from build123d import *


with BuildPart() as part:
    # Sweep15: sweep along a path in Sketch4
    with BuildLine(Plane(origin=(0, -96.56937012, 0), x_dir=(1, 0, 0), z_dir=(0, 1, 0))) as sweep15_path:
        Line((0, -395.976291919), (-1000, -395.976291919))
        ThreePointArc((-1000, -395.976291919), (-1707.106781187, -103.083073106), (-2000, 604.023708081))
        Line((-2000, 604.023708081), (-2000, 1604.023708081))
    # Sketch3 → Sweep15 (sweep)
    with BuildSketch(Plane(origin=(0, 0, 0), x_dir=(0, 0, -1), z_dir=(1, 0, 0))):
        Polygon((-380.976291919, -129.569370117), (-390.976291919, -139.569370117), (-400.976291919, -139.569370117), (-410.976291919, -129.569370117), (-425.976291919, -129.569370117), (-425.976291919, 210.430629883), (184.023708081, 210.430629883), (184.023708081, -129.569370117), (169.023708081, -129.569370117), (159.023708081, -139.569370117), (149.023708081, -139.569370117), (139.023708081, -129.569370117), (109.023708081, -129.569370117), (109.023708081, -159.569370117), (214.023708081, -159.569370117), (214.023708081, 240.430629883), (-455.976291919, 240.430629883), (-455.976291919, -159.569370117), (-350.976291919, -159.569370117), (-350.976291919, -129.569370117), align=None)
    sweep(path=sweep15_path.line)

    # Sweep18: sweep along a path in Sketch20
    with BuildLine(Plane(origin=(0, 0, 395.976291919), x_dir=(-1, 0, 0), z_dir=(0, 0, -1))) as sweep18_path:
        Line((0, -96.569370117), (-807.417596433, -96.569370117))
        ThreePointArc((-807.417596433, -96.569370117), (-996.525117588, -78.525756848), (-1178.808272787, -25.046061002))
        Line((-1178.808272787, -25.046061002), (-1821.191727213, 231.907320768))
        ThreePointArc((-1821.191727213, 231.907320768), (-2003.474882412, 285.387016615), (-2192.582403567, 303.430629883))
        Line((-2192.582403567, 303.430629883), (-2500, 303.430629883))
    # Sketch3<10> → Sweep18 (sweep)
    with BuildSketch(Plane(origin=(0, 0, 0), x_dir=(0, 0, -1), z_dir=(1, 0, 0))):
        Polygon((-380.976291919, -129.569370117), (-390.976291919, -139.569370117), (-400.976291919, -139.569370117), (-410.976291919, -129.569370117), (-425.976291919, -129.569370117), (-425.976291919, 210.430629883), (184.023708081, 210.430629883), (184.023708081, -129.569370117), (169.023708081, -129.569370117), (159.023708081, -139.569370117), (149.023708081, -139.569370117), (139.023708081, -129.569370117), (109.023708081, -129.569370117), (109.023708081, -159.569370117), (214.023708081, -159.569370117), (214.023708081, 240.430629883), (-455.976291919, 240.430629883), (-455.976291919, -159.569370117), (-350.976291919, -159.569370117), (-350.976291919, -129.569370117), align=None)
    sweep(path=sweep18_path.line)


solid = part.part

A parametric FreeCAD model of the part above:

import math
import FreeCAD as App
import Part
import Sketcher

doc = App.newDocument("Part")
body = doc.addObject("PartDesign::Body", "Body")

sketch1 = body.newObject("Sketcher::SketchObject", "Sketch")
sketch1.AttachmentSupport = (doc.getObject("YZ_Plane"), [""])
sketch1.MapMode = "FlatFace"
sketch1.addGeometry(Part.LineSegment(App.Vector(-130, 381, 0), App.Vector(-140, 391, 0)), False)
sketch1.addGeometry(Part.LineSegment(App.Vector(-140, 391, 0), App.Vector(-140, 401, 0)), False)
sketch1.addGeometry(Part.LineSegment(App.Vector(-140, 401, 0), App.Vector(-130, 411, 0)), False)
sketch1.addGeometry(Part.LineSegment(App.Vector(-130, 411, 0), App.Vector(-130, 426, 0)), False)
sketch1.addGeometry(Part.LineSegment(App.Vector(-130, 426, 0), App.Vector(210, 426, 0)), False)
sketch1.addGeometry(Part.LineSegment(App.Vector(210, 426, 0), App.Vector(210, -184, 0)), False)
sketch1.addGeometry(Part.LineSegment(App.Vector(210, -184, 0), App.Vector(-130, -184, 0)), False)
sketch1.addGeometry(Part.LineSegment(App.Vector(-130, -184, 0), App.Vector(-130, -169, 0)), False)
sketch1.addGeometry(Part.LineSegment(App.Vector(-130, -169, 0), App.Vector(-140, -159, 0)), False)
sketch1.addGeometry(Part.LineSegment(App.Vector(-140, -159, 0), App.Vector(-140, -149, 0)), False)
sketch1.addGeometry(Part.LineSegment(App.Vector(-140, -149, 0), App.Vector(-130, -139, 0)), False)
sketch1.addGeometry(Part.LineSegment(App.Vector(-130, -139, 0), App.Vector(-130, -109, 0)), False)
sketch1.addGeometry(Part.LineSegment(App.Vector(-130, -109, 0), App.Vector(-160, -109, 0)), False)
sketch1.addGeometry(Part.LineSegment(App.Vector(-160, -109, 0), App.Vector(-160, -214, 0)), False)
sketch1.addGeometry(Part.LineSegment(App.Vector(-160, -214, 0), App.Vector(240, -214, 0)), False)
sketch1.addGeometry(Part.LineSegment(App.Vector(240, -214, 0), App.Vector(240, 456, 0)), False)
sketch1.addGeometry(Part.LineSegment(App.Vector(240, 456, 0), App.Vector(-160, 456, 0)), False)
sketch1.addGeometry(Part.LineSegment(App.Vector(-160, 456, 0), App.Vector(-160, 351, 0)), False)
sketch1.addGeometry(Part.LineSegment(App.Vector(-160, 351, 0), App.Vector(-130, 351, 0)), False)
sketch1.addGeometry(Part.LineSegment(App.Vector(-130, 351, 0), App.Vector(-130, 381, 0)), False)
sketch1.addConstraint(Sketcher.Constraint("Coincident", 0, 2, 1, 1))
sketch1.addConstraint(Sketcher.Constraint("Coincident", 1, 2, 2, 1))
sketch1.addConstraint(Sketcher.Constraint("Coincident", 2, 2, 3, 1))
sketch1.addConstraint(Sketcher.Constraint("Coincident", 3, 2, 4, 1))
sketch1.addConstraint(Sketcher.Constraint("Coincident", 4, 2, 5, 1))
sketch1.addConstraint(Sketcher.Constraint("Coincident", 5, 2, 6, 1))
sketch1.addConstraint(Sketcher.Constraint("Coincident", 6, 2, 7, 1))
sketch1.addConstraint(Sketcher.Constraint("Coincident", 7, 2, 8, 1))
sketch1.addConstraint(Sketcher.Constraint("Coincident", 8, 2, 9, 1))
sketch1.addConstraint(Sketcher.Constraint("Coincident", 9, 2, 10, 1))
sketch1.addConstraint(Sketcher.Constraint("Coincident", 10, 2, 11, 1))
sketch1.addConstraint(Sketcher.Constraint("Coincident", 11, 2, 12, 1))
sketch1.addConstraint(Sketcher.Constraint("Coincident", 12, 2, 13, 1))
sketch1.addConstraint(Sketcher.Constraint("Coincident", 13, 2, 14, 1))
sketch1.addConstraint(Sketcher.Constraint("Coincident", 14, 2, 15, 1))
sketch1.addConstraint(Sketcher.Constraint("Coincident", 15, 2, 16, 1))
sketch1.addConstraint(Sketcher.Constraint("Coincident", 16, 2, 17, 1))
sketch1.addConstraint(Sketcher.Constraint("Coincident", 17, 2, 18, 1))
sketch1.addConstraint(Sketcher.Constraint("Coincident", 18, 2, 19, 1))
sketch1.addConstraint(Sketcher.Constraint("Coincident", 19, 2, 0, 1))
sketch1.addConstraint(Sketcher.Constraint("Vertical", 1))
sketch1.addConstraint(Sketcher.Constraint("Vertical", 3))
sketch1.addConstraint(Sketcher.Constraint("Horizontal", 4))
sketch1.addConstraint(Sketcher.Constraint("Vertical", 5))
sketch1.addConstraint(Sketcher.Constraint("Horizontal", 6))
sketch1.addConstraint(Sketcher.Constraint("Vertical", 7))
sketch1.addConstraint(Sketcher.Constraint("Vertical", 9))
sketch1.addConstraint(Sketcher.Constraint("Vertical", 11))
sketch1.addConstraint(Sketcher.Constraint("Horizontal", 12))
sketch1.addConstraint(Sketcher.Constraint("Vertical", 13))
sketch1.addConstraint(Sketcher.Constraint("Horizontal", 14))
sketch1.addConstraint(Sketcher.Constraint("Vertical", 15))
sketch1.addConstraint(Sketcher.Constraint("Horizontal", 16))
sketch1.addConstraint(Sketcher.Constraint("Vertical", 17))
sketch1.addConstraint(Sketcher.Constraint("Horizontal", 18))
sketch1.addConstraint(Sketcher.Constraint("Vertical", 19))
sketch1.addConstraint(Sketcher.Constraint("Perpendicular", 0, 2))
sketch1.addConstraint(Sketcher.Constraint("Perpendicular", 2, 8))
sketch1.addConstraint(Sketcher.Constraint("Perpendicular", 8, 10))
sketch1.addConstraint(Sketcher.Constraint("Vertical", 3, 2, 6, 2))
sketch1.addConstraint(Sketcher.Constraint("Vertical", 1, 2, 8, 2))
sketch1.addConstraint(Sketcher.Constraint("Vertical", 7, 2, 10, 2))
sketch1.addConstraint(Sketcher.Constraint("Vertical", 13, 2, 16, 2))
sketch1.addConstraint(Sketcher.Constraint("Vertical", 11, 2, 18, 2))
sketch1.addConstraint(Sketcher.Constraint("Equal", 3, 7))
sketch1.addConstraint(Sketcher.Constraint("Equal", 1, 9))
sketch1.addConstraint(Sketcher.Constraint("Equal", 18, 11))
sketch1.addConstraint(Sketcher.Constraint("Equal", 13, 17))
sketch1.addConstraint(Sketcher.Constraint("Equal", 11, 19))
sketch1.addConstraint(Sketcher.Constraint("Equal", 0, 2))
sketch1.addConstraint(Sketcher.Constraint("DistanceX", 4, 1, 4, 2, 340.0))
sketch1.addConstraint(Sketcher.Constraint("DistanceX", 12, 2, 12, 1, 30.0))
sketch1.addConstraint(Sketcher.Constraint("DistanceX", 14, 1, 14, 2, 400.0))
sketch1.addConstraint(Sketcher.Constraint("DistanceY", 1, 1, 1, 2, 10.0))
sketch1.addConstraint(Sketcher.Constraint("DistanceY", 3, 1, 3, 2, 15.0))
sketch1.addConstraint(Sketcher.Constraint("DistanceY", 5, 2, 5, 1, 610.0))
sketch1.addConstraint(Sketcher.Constraint("DistanceY", 13, 2, 13, 1, 105.0))
sketch1.addConstraint(Sketcher.Constraint("DistanceY", 15, 1, 15, 2, 670.0))
sketch1.addConstraint(Sketcher.Constraint("DistanceX", 0, 2, -1, 1, 139.56937))
sketch1.addConstraint(Sketcher.Constraint("DistanceY", -1, 1, 0, 2, 390.976292))

sketch2 = body.newObject("Sketcher::SketchObject", "Sketch001")
sketch2.AttachmentSupport = (doc.getObject("XZ_Plane"), [""])
sketch2.MapMode = "FlatFace"
sketch2.AttachmentOffset = App.Placement(App.Vector(0, 0, 96.56937), App.Rotation())
sketch2.addGeometry(Part.LineSegment(App.Vector(0, 396, 0), App.Vector(-1000, 396, 0)), False)
sketch2.addGeometry(Part.ArcOfCircle(Part.Circle(App.Vector(-1000, -604, 0), App.Vector(0, 0, 1), 1000), math.radians(90), math.radians(180)), False)
sketch2.addGeometry(Part.LineSegment(App.Vector(-2000, -604, 0), App.Vector(-2000, -1604, 0)), False)
sketch2.addConstraint(Sketcher.Constraint("Coincident", 0, 2, 1, 1))
sketch2.addConstraint(Sketcher.Constraint("Coincident", 1, 2, 2, 1))
sketch2.addConstraint(Sketcher.Constraint("Horizontal", 0))
sketch2.addConstraint(Sketcher.Constraint("Vertical", 2))
sketch2.addConstraint(Sketcher.Constraint("PointOnObject", 0, 1, -2))
sketch2.addConstraint(Sketcher.Constraint("Vertical", 1, 3, 0, 2))
sketch2.addConstraint(Sketcher.Constraint("Equal", 0, 2))
sketch2.addConstraint(Sketcher.Constraint("Radius", 1, 1000.0))
sketch2.addConstraint(Sketcher.Constraint("DistanceX", 0, 2, 0, 1, 1000.0))
sketch2.addConstraint(Sketcher.Constraint("DistanceY", 2, 2, 1, 3, 1000.0))
sketch2.addConstraint(Sketcher.Constraint("DistanceY", 1, 3, -1, 1, 604.023708))
doc.recompute()

additivepipe = body.newObject("PartDesign::AdditivePipe", "AdditivePipe")
additivepipe.Profile = sketch1
additivepipe.Spine = (sketch2, ["Edge1", "Edge2", "Edge3"])

sketch3 = body.newObject("Sketcher::SketchObject", "Sketch002")
sketch3.AttachmentSupport = (doc.getObject("YZ_Plane"), [""])
sketch3.MapMode = "FlatFace"
sketch3.addGeometry(Part.LineSegment(App.Vector(-130, 381, 0), App.Vector(-140, 391, 0)), False)
sketch3.addGeometry(Part.LineSegment(App.Vector(-140, 391, 0), App.Vector(-140, 401, 0)), False)
sketch3.addGeometry(Part.LineSegment(App.Vector(-140, 401, 0), App.Vector(-130, 411, 0)), False)
sketch3.addGeometry(Part.LineSegment(App.Vector(-130, 411, 0), App.Vector(-130, 426, 0)), False)
sketch3.addGeometry(Part.LineSegment(App.Vector(-130, 426, 0), App.Vector(210, 426, 0)), False)
sketch3.addGeometry(Part.LineSegment(App.Vector(210, 426, 0), App.Vector(210, -184, 0)), False)
sketch3.addGeometry(Part.LineSegment(App.Vector(210, -184, 0), App.Vector(-130, -184, 0)), False)
sketch3.addGeometry(Part.LineSegment(App.Vector(-130, -184, 0), App.Vector(-130, -169, 0)), False)
sketch3.addGeometry(Part.LineSegment(App.Vector(-130, -169, 0), App.Vector(-140, -159, 0)), False)
sketch3.addGeometry(Part.LineSegment(App.Vector(-140, -159, 0), App.Vector(-140, -149, 0)), False)
sketch3.addGeometry(Part.LineSegment(App.Vector(-140, -149, 0), App.Vector(-130, -139, 0)), False)
sketch3.addGeometry(Part.LineSegment(App.Vector(-130, -139, 0), App.Vector(-130, -109, 0)), False)
sketch3.addGeometry(Part.LineSegment(App.Vector(-130, -109, 0), App.Vector(-160, -109, 0)), False)
sketch3.addGeometry(Part.LineSegment(App.Vector(-160, -109, 0), App.Vector(-160, -214, 0)), False)
sketch3.addGeometry(Part.LineSegment(App.Vector(-160, -214, 0), App.Vector(240, -214, 0)), False)
sketch3.addGeometry(Part.LineSegment(App.Vector(240, -214, 0), App.Vector(240, 456, 0)), False)
sketch3.addGeometry(Part.LineSegment(App.Vector(240, 456, 0), App.Vector(-160, 456, 0)), False)
sketch3.addGeometry(Part.LineSegment(App.Vector(-160, 456, 0), App.Vector(-160, 351, 0)), False)
sketch3.addGeometry(Part.LineSegment(App.Vector(-160, 351, 0), App.Vector(-130, 351, 0)), False)
sketch3.addGeometry(Part.LineSegment(App.Vector(-130, 351, 0), App.Vector(-130, 381, 0)), False)
sketch3.addConstraint(Sketcher.Constraint("Coincident", 0, 2, 1, 1))
sketch3.addConstraint(Sketcher.Constraint("Coincident", 1, 2, 2, 1))
sketch3.addConstraint(Sketcher.Constraint("Coincident", 2, 2, 3, 1))
sketch3.addConstraint(Sketcher.Constraint("Coincident", 3, 2, 4, 1))
sketch3.addConstraint(Sketcher.Constraint("Coincident", 4, 2, 5, 1))
sketch3.addConstraint(Sketcher.Constraint("Coincident", 5, 2, 6, 1))
sketch3.addConstraint(Sketcher.Constraint("Coincident", 6, 2, 7, 1))
sketch3.addConstraint(Sketcher.Constraint("Coincident", 7, 2, 8, 1))
sketch3.addConstraint(Sketcher.Constraint("Coincident", 8, 2, 9, 1))
sketch3.addConstraint(Sketcher.Constraint("Coincident", 9, 2, 10, 1))
sketch3.addConstraint(Sketcher.Constraint("Coincident", 10, 2, 11, 1))
sketch3.addConstraint(Sketcher.Constraint("Coincident", 11, 2, 12, 1))
sketch3.addConstraint(Sketcher.Constraint("Coincident", 12, 2, 13, 1))
sketch3.addConstraint(Sketcher.Constraint("Coincident", 13, 2, 14, 1))
sketch3.addConstraint(Sketcher.Constraint("Coincident", 14, 2, 15, 1))
sketch3.addConstraint(Sketcher.Constraint("Coincident", 15, 2, 16, 1))
sketch3.addConstraint(Sketcher.Constraint("Coincident", 16, 2, 17, 1))
sketch3.addConstraint(Sketcher.Constraint("Coincident", 17, 2, 18, 1))
sketch3.addConstraint(Sketcher.Constraint("Coincident", 18, 2, 19, 1))
sketch3.addConstraint(Sketcher.Constraint("Coincident", 19, 2, 0, 1))
sketch3.addConstraint(Sketcher.Constraint("Vertical", 1))
sketch3.addConstraint(Sketcher.Constraint("Vertical", 3))
sketch3.addConstraint(Sketcher.Constraint("Horizontal", 4))
sketch3.addConstraint(Sketcher.Constraint("Vertical", 5))
sketch3.addConstraint(Sketcher.Constraint("Horizontal", 6))
sketch3.addConstraint(Sketcher.Constraint("Vertical", 7))
sketch3.addConstraint(Sketcher.Constraint("Vertical", 9))
sketch3.addConstraint(Sketcher.Constraint("Vertical", 11))
sketch3.addConstraint(Sketcher.Constraint("Horizontal", 12))
sketch3.addConstraint(Sketcher.Constraint("Vertical", 13))
sketch3.addConstraint(Sketcher.Constraint("Horizontal", 14))
sketch3.addConstraint(Sketcher.Constraint("Vertical", 15))
sketch3.addConstraint(Sketcher.Constraint("Horizontal", 16))
sketch3.addConstraint(Sketcher.Constraint("Vertical", 17))
sketch3.addConstraint(Sketcher.Constraint("Horizontal", 18))
sketch3.addConstraint(Sketcher.Constraint("Vertical", 19))
sketch3.addConstraint(Sketcher.Constraint("Perpendicular", 0, 2))
sketch3.addConstraint(Sketcher.Constraint("Perpendicular", 2, 8))
sketch3.addConstraint(Sketcher.Constraint("Perpendicular", 8, 10))
sketch3.addConstraint(Sketcher.Constraint("Vertical", 3, 2, 6, 2))
sketch3.addConstraint(Sketcher.Constraint("Vertical", 1, 2, 8, 2))
sketch3.addConstraint(Sketcher.Constraint("Vertical", 7, 2, 10, 2))
sketch3.addConstraint(Sketcher.Constraint("Vertical", 13, 2, 16, 2))
sketch3.addConstraint(Sketcher.Constraint("Vertical", 11, 2, 18, 2))
sketch3.addConstraint(Sketcher.Constraint("Equal", 3, 7))
sketch3.addConstraint(Sketcher.Constraint("Equal", 1, 9))
sketch3.addConstraint(Sketcher.Constraint("Equal", 18, 11))
sketch3.addConstraint(Sketcher.Constraint("Equal", 13, 17))
sketch3.addConstraint(Sketcher.Constraint("Equal", 11, 19))
sketch3.addConstraint(Sketcher.Constraint("Equal", 0, 2))
sketch3.addConstraint(Sketcher.Constraint("DistanceX", 4, 1, 4, 2, 340.0))
sketch3.addConstraint(Sketcher.Constraint("DistanceX", 12, 2, 12, 1, 30.0))
sketch3.addConstraint(Sketcher.Constraint("DistanceX", 14, 1, 14, 2, 400.0))
sketch3.addConstraint(Sketcher.Constraint("DistanceY", 1, 1, 1, 2, 10.0))
sketch3.addConstraint(Sketcher.Constraint("DistanceY", 3, 1, 3, 2, 15.0))
sketch3.addConstraint(Sketcher.Constraint("DistanceY", 5, 2, 5, 1, 610.0))
sketch3.addConstraint(Sketcher.Constraint("DistanceY", 13, 2, 13, 1, 105.0))
sketch3.addConstraint(Sketcher.Constraint("DistanceY", 15, 1, 15, 2, 670.0))
sketch3.addConstraint(Sketcher.Constraint("DistanceX", 0, 2, -1, 1, 139.56937))
sketch3.addConstraint(Sketcher.Constraint("DistanceY", -1, 1, 0, 2, 390.976292))

sketch4 = body.newObject("Sketcher::SketchObject", "Sketch003")
sketch4.AttachmentSupport = (doc.getObject("XY_Plane"), [""])
sketch4.MapMode = "FlatFace"
sketch4.AttachmentOffset = App.Placement(App.Vector(0, 0, 395.976292), App.Rotation())
sketch4.addGeometry(Part.LineSegment(App.Vector(0, -97, 0), App.Vector(807, -97, 0)), False)
sketch4.addGeometry(Part.ArcOfCircle(Part.Circle(App.Vector(807, 903, 0), App.Vector(0, 0, 1), 1000), math.radians(-90), math.radians(-68)), False)
sketch4.addGeometry(Part.LineSegment(App.Vector(1179, -25, 0), App.Vector(1821, 232, 0)), False)
sketch4.addGeometry(Part.ArcOfCircle(Part.Circle(App.Vector(2193, -697, 0), App.Vector(0, 0, 1), 1000), math.radians(90), math.radians(112)), False)
sketch4.addGeometry(Part.LineSegment(App.Vector(2193, 303, 0), App.Vector(2500, 303, 0)), False)
sketch4.addConstraint(Sketcher.Constraint("Tangent", 0, 2, 1, 1))
sketch4.addConstraint(Sketcher.Constraint("Tangent", 1, 2, 2, 1))
sketch4.addConstraint(Sketcher.Constraint("Coincident", 2, 2, 3, 2))
sketch4.addConstraint(Sketcher.Constraint("Tangent", 3, 1, 4, 1))
sketch4.addConstraint(Sketcher.Constraint("Horizontal", 0))
sketch4.addConstraint(Sketcher.Constraint("Horizontal", 4))
sketch4.addConstraint(Sketcher.Constraint("Equal", 1, 3))
sketch4.addConstraint(Sketcher.Constraint("PointOnObject", 0, 1, -2))
sketch4.addConstraint(Sketcher.Constraint("Radius", 1, 1000.0))
sketch4.addConstraint(Sketcher.Constraint("DistanceX", -1, 1, 4, 2, 2500.0))
sketch4.addConstraint(Sketcher.Constraint("DistanceY", 3, 3, 1, 3, 1600.0))
sketch4.addConstraint(Sketcher.Constraint("DistanceX", 0, 1, 0, 2, 807.417596))
sketch4.addConstraint(Sketcher.Constraint("DistanceX", 4, 1, 4, 2, 307.417596))
sketch4.addConstraint(Sketcher.Constraint("DistanceY", -1, 1, 1, 3, 903.43063))
sketch4.addConstraint(Sketcher.Constraint("DistanceY", -1, 1, 2, 2, 231.907321))
doc.recompute()

additivepipe2 = body.newObject("PartDesign::AdditivePipe", "AdditivePipe001")
additivepipe2.Profile = sketch3
additivepipe2.Spine = (sketch4, ["Edge1", "Edge2", "Edge3", "Edge4", "Edge5"])

doc.recompute()
